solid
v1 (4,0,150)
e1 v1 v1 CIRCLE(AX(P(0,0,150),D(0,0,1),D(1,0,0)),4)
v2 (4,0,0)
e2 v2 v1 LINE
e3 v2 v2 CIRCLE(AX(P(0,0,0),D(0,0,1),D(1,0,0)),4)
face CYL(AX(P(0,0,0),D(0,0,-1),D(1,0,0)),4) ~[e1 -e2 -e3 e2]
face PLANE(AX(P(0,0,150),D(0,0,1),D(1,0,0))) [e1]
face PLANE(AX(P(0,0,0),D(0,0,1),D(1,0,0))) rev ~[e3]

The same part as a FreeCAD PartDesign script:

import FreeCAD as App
import Part
import Sketcher
from FreeCAD import Vector

doc = App.newDocument("Part")
body = doc.addObject("PartDesign::Body", "Body")

# Sketch on XY plane
sketch1 = body.newObject("Sketcher::SketchObject", "Sketch")
sketch1.AttachmentSupport = (doc.getObject("XY_Plane"), [""])
sketch1.MapMode = "FlatFace"
sketch1.addGeometry(Part.Circle(Vector(0, 0, 0), Vector(0, 0, 1), 4), False)
sketch1.addConstraint([
    Sketcher.Constraint("Coincident", 0, 3, -1, 1),
    Sketcher.Constraint("Diameter", 0, 8.0),
])
pad1 = body.newObject("PartDesign::Pad", "Pad")
pad1.Profile = sketch1
pad1.Length = 150

doc.recompute()
